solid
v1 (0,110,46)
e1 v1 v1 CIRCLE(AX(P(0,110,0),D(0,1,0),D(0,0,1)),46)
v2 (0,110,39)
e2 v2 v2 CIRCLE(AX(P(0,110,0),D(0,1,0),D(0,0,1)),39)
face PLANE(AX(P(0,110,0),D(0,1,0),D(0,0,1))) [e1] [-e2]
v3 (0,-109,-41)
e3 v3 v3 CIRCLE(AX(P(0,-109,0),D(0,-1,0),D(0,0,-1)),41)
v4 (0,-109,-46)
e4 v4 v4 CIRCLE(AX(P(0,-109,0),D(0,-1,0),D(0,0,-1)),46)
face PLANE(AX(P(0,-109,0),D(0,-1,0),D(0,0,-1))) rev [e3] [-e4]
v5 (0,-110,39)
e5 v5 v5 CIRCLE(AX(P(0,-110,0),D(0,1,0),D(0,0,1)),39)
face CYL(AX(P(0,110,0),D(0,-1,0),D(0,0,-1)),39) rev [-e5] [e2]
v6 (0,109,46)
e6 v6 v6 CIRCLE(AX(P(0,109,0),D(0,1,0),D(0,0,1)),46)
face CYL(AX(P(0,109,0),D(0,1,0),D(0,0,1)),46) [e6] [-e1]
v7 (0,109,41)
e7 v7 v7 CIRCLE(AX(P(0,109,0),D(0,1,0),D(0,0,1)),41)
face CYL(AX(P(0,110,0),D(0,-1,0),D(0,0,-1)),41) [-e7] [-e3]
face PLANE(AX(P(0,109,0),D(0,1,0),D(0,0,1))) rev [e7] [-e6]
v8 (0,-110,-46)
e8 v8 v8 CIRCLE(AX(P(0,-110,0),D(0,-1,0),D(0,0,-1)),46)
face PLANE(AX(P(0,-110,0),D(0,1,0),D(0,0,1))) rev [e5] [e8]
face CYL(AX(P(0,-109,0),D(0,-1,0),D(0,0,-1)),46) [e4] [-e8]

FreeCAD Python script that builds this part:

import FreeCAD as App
import Part
import Sketcher
from FreeCAD import Vector
Q = App.Units.Quantity

doc = App.newDocument("Part")
params = doc.addObject("Spreadsheet::Sheet", "Params")
for row, (alias, value) in enumerate([
    ("sketch1_diameter", "82 mm"),
    ("sketch1_diameter2", "78 mm"),
    ("pad1_length", "220 mm"),
    ("sketch2_diameter", "92 mm"),
    ("sketch2_diameter2", "82 mm"),
    ("pad2_length", "1 mm"),
    ("sketch3_diameter", "92 mm"),
    ("sketch3_diameter2", "82 mm"),
    ("pad3_length", "1 mm"),
], start=1):
    params.set(f"A{row}", alias)
    params.set(f"B{row}", "=" + value)
    params.setAlias(f"B{row}", alias)

body = doc.addObject("PartDesign::Body", "Body")

sketch1 = body.newObject("Sketcher::SketchObject", "Sketch")
sketch1.AttachmentSupport = (doc.getObject("XZ_Plane"), [""])
sketch1.MapMode = "FlatFace"
sketch1.addGeometry([
    Part.Circle(Vector(0, 0, 0), Vector(0, 0, 1), 41),
    Part.Circle(Vector(0, 0, 0), Vector(0, 0, 1), 39),
], False)
sketch1.addConstraint([
    Sketcher.Constraint("Coincident", 0, 3, -1, 1),
    Sketcher.Constraint("Coincident", 1, 3, -1, 1),
    Sketcher.Constraint("Diameter", 0, Q("82 mm")),
    Sketcher.Constraint("Diameter", 1, Q("78 mm")),
])
sketch1.setExpression("Constraints[2]", "Params.sketch1_diameter")
sketch1.setExpression("Constraints[3]", "Params.sketch1_diameter2")
pad1 = body.newObject("PartDesign::Pad", "Pad")
pad1.Profile = sketch1
pad1.setExpression("Length", "Params.pad1_length")
pad1.Midplane = True

sketch2 = body.newObject("Sketcher::SketchObject", "Sketch001")
sketch2.AttachmentSupport = (doc.getObject("XZ_Plane"), [""])
sketch2.MapMode = "FlatFace"
sketch2.AttachmentOffset = App.Placement(Vector(0, 0, -110), App.Rotation())
sketch2.addGeometry([
    Part.Circle(Vector(0, 0, 0), Vector(0, 0, 1), 46),
    Part.Circle(Vector(0, 0, 0), Vector(0, 0, 1), 41),
], False)
sketch2.addConstraint([
    Sketcher.Constraint("Coincident", 0, 3, -1, 1),
    Sketcher.Constraint("Coincident", 1, 3, -1, 1),
    Sketcher.Constraint("Diameter", 0, Q("92 mm")),
    Sketcher.Constraint("Diameter", 1, Q("82 mm")),
])
sketch2.setExpression("Constraints[2]", "Params.sketch2_diameter")
sketch2.setExpression("Constraints[3]", "Params.sketch2_diameter2")
pad2 = body.newObject("PartDesign::Pad", "Pad001")
pad2.Profile = sketch2
pad2.setExpression("Length", "Params.pad2_length")

sketch3 = body.newObject("Sketcher::SketchObject", "Sketch002")
sketch3.AttachmentSupport = (doc.getObject("XZ_Plane"), [""])
sketch3.MapMode = "FlatFace"
sketch3.AttachmentOffset = App.Placement(Vector(0, 0, 109), App.Rotation())
sketch3.addGeometry([
    Part.Circle(Vector(0, 0, 0), Vector(0, 0, 1), 46),
    Part.Circle(Vector(0, 0, 0), Vector(0, 0, 1), 41),
], False)
sketch3.addConstraint([
    Sketcher.Constraint("Coincident", 0, 3, -1, 1),
    Sketcher.Constraint("Coincident", 1, 3, -1, 1),
    Sketcher.Constraint("Diameter", 0, Q("92 mm")),
    Sketcher.Constraint("Diameter", 1, Q("82 mm")),
])
sketch3.setExpression("Constraints[2]", "Params.sketch3_diameter")
sketch3.setExpression("Constraints[3]", "Params.sketch3_diameter2")
pad3 = body.newObject("PartDesign::Pad", "Pad002")
pad3.Profile = sketch3
pad3.setExpression("Length", "Params.pad3_length")

doc.recompute()
